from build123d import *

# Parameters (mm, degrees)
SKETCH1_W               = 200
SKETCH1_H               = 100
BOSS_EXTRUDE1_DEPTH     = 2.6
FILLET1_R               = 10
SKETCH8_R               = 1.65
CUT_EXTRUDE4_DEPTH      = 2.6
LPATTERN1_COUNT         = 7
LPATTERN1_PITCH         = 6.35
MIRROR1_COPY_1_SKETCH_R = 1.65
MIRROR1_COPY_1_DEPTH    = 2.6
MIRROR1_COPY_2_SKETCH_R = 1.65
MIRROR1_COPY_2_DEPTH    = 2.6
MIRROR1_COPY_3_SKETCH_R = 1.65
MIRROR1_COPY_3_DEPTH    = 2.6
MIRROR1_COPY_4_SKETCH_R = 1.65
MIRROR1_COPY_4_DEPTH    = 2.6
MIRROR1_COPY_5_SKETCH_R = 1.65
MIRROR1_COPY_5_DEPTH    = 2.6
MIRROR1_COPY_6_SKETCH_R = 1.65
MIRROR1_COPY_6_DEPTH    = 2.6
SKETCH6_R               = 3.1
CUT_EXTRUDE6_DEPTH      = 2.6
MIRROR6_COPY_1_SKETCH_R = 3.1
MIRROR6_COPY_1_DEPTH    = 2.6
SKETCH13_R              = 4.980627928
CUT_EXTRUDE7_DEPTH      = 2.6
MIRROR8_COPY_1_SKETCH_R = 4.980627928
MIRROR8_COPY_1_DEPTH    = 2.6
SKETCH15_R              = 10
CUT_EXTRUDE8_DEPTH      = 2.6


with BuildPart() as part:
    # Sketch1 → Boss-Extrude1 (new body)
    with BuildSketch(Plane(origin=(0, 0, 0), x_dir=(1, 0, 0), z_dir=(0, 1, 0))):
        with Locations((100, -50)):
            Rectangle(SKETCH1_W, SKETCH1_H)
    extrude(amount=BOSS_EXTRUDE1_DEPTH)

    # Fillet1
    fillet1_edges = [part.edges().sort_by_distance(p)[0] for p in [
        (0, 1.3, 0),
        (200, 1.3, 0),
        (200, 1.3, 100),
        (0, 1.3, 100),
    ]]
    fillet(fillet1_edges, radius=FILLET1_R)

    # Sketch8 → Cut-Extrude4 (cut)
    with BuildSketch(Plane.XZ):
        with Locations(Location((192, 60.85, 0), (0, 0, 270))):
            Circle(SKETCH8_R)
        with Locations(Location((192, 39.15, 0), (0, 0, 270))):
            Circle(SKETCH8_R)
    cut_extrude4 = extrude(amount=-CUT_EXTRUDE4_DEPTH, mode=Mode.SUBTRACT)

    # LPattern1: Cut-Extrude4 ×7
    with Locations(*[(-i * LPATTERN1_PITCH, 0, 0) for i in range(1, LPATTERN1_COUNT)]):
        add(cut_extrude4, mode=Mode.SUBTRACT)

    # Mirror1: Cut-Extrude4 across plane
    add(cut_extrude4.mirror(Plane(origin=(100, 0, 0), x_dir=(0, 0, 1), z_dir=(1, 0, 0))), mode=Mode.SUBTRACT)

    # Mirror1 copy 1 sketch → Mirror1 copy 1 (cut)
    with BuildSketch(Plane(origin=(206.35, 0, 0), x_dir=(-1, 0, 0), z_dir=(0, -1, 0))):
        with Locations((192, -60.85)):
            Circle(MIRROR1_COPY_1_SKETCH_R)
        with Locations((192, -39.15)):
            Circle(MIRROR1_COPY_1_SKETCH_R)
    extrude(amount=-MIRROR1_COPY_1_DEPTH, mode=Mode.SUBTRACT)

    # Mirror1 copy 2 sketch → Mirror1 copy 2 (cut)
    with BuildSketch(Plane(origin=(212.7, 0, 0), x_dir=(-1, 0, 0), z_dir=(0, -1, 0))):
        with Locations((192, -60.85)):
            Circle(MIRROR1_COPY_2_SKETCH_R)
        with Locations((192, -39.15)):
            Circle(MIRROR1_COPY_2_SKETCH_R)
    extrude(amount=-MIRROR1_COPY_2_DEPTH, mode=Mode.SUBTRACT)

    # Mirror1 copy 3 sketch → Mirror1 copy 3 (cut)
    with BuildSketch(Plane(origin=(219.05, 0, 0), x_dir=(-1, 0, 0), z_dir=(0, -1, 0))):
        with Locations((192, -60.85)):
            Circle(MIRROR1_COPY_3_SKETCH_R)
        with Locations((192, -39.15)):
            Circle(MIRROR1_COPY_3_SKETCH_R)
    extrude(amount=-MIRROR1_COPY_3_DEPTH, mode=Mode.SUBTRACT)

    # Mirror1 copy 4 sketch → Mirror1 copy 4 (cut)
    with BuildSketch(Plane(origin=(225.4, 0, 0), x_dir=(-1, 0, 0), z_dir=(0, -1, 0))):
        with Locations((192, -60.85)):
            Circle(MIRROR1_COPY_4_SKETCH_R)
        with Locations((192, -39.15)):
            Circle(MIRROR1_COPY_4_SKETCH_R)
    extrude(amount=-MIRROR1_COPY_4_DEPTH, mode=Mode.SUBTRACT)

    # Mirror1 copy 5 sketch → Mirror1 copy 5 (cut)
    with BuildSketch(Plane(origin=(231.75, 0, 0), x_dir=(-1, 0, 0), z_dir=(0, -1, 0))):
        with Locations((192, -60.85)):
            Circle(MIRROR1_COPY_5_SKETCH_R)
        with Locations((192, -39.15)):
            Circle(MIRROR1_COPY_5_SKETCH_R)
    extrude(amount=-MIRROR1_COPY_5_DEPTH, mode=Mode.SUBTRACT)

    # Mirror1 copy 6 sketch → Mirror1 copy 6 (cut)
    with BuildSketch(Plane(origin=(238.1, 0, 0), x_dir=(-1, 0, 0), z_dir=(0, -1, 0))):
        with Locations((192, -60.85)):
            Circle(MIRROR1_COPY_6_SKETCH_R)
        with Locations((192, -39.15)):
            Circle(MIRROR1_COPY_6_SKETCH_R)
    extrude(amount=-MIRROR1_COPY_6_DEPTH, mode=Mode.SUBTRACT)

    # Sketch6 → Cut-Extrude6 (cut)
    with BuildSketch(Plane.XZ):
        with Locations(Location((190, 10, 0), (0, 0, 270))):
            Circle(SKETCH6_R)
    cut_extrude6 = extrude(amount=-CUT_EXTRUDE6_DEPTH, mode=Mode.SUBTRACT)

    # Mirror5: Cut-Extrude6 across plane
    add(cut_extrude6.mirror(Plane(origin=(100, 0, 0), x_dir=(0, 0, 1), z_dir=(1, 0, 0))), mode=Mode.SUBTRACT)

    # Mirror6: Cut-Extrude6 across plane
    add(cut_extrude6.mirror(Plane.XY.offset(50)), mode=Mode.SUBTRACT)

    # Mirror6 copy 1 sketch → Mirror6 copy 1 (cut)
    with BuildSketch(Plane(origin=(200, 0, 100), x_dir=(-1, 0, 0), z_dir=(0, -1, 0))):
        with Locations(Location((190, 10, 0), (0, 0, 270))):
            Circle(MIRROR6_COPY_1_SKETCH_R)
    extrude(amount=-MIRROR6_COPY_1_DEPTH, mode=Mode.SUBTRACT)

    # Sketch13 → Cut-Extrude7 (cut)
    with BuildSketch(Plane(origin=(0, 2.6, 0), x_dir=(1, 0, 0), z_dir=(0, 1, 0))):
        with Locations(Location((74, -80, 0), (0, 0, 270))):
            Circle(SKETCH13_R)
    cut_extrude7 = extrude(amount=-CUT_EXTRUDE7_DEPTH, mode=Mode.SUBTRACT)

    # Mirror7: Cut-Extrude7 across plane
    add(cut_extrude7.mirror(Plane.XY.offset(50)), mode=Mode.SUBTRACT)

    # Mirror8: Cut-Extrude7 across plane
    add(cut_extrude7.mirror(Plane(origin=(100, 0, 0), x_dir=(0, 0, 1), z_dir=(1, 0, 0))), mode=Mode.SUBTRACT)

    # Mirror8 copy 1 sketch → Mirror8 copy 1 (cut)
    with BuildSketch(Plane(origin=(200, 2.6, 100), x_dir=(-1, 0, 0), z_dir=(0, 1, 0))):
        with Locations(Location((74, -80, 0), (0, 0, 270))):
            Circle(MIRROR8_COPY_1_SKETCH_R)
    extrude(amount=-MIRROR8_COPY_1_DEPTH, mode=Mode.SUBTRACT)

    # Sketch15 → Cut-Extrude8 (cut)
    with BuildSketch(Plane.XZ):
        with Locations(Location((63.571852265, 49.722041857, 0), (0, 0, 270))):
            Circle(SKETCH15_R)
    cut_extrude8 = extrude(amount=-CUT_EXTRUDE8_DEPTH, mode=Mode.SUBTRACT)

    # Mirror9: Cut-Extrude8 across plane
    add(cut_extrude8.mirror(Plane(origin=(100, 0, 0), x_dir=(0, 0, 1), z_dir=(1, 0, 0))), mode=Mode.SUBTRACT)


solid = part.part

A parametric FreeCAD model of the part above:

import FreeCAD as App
import Part
import Sketcher
from FreeCAD import Vector
Q = App.Units.Quantity


def edges_at(feature, points):
    """Names of the edges that pass closest to the given points."""
    edges = feature.Shape.Edges
    near = lambda p: min(range(len(edges)), key=lambda i: edges[i].distToShape(Part.Vertex(*p))[0])
    return sorted({f"Edge{near(p) + 1}" for p in points})


def add_polygon(sketch, points):
    """Adds a closed chain of lines whose ends are joined by coincident constraints."""
    first, n = sketch.GeometryCount, len(points)
    for a, b in zip(points, points[1:] + points[:1]):
        sketch.addGeometry(Part.LineSegment(App.Vector(*a, 0), App.Vector(*b, 0)), False)
    for i in range(n):
        sketch.addConstraint(Sketcher.Constraint("Coincident", first + i, 2, first + (i + 1) % n, 1))

doc = App.newDocument("Part")
body = doc.addObject("PartDesign::Body", "Body")

# Sketch on XZ plane
sketch1 = body.newObject("Sketcher::SketchObject", "Sketch")
sketch1.AttachmentSupport = (doc.getObject("XZ_Plane"), [""])
sketch1.MapMode = "FlatFace"
add_polygon(sketch1, [(0, 0), (0, 100), (200, 100), (200, 0)])  # lines 0-3
sketch1.addConstraint(Sketcher.Constraint("Vertical", 0))
sketch1.addConstraint(Sketcher.Constraint("Horizontal", 1))
sketch1.addConstraint(Sketcher.Constraint("Vertical", 2))
sketch1.addConstraint(Sketcher.Constraint("Horizontal", 3))
sketch1.addConstraint(Sketcher.Constraint("Coincident", 3, 2, -1, 1))
sketch1.addConstraint(Sketcher.Constraint("DistanceX", 1, 1, 1, 2, Q("200 mm")))
sketch1.addConstraint(Sketcher.Constraint("DistanceY", 0, 1, 0, 2, Q("100 mm")))
pad1 = body.newObject("PartDesign::Pad", "Pad")
pad1.Profile = sketch1
pad1.Length = 2.6
pad1.Reversed = True
doc.recompute()

fillet = body.newObject("PartDesign::Fillet", "Fillet")
fillet.Base = (pad1, edges_at(pad1, [
    (0, 1.3, 0),
    (200, 1.3, 0),
    (200, 1.3, 100),
    (0, 1.3, 100),
]))
fillet.Radius = 10

# Sketch on XZ plane
sketch2 = body.newObject("Sketcher::SketchObject", "Sketch001")
sketch2.AttachmentSupport = (doc.getObject("XZ_Plane"), [""])
sketch2.MapMode = "FlatFace"
sketch2.addGeometry(Part.Circle(Vector(192, 60.9, 0), Vector(0, 0, 1), 1.6), False)
sketch2.addGeometry(Part.Circle(Vector(192, 39.1, 0), Vector(0, 0, 1), 1.6), False)
sketch2.addConstraint(Sketcher.Constraint("Equal", 0, 1))
sketch2.addConstraint(Sketcher.Constraint("Vertical", 0, 3, 1, 3))
sketch2.addConstraint(Sketcher.Constraint("Diameter", 0, Q("3.3 mm")))
sketch2.addConstraint(Sketcher.Constraint("DistanceX", -1, 1, 0, 3, Q("192 mm")))
sketch2.addConstraint(Sketcher.Constraint("DistanceY", 1, 3, 0, 3, Q("21.7 mm")))
sketch2.addConstraint(Sketcher.Constraint("DistanceY", -1, 1, 0, 3, Q("60.85 mm")))
pocket1 = body.newObject("PartDesign::Pocket", "Pocket")
pocket1.Profile = sketch2
pocket1.Length = 2.6
doc.recompute()

linearpattern = body.newObject("PartDesign::LinearPattern", "LinearPattern")
linearpattern.Originals = [pocket1]
linearpattern.Direction = (doc.getObject("X_Axis"), [""])
linearpattern.Mode = "offset"
linearpattern.Offset = 6.35
linearpattern.Occurrences = 7
linearpattern.Reversed = True
body.Tip = linearpattern
doc.recompute()

datumplane = body.newObject("PartDesign::Plane", "DatumPlane")
datumplane.AttachmentSupport = (doc.getObject("YZ_Plane"), [""])
datumplane.MapMode = "FlatFace"
datumplane.AttachmentOffset = App.Placement(Vector(0, 0, 100), App.Rotation())
mirrored = body.newObject("PartDesign::Mirrored", "Mirrored")
mirrored.Originals = [pocket1]
mirrored.MirrorPlane = (datumplane, [""])
body.Tip = mirrored

# Sketch on XZ plane
sketch3 = body.newObject("Sketcher::SketchObject", "Sketch002")
sketch3.AttachmentSupport = (doc.getObject("XZ_Plane"), [""])
sketch3.MapMode = "FlatFace"
sketch3.addGeometry(Part.Circle(Vector(14.3, 60.9, 0), Vector(0, 0, 1), 1.6), False)
sketch3.addGeometry(Part.Circle(Vector(14.3, 39.1, 0), Vector(0, 0, 1), 1.6), False)
sketch3.addConstraint(Sketcher.Constraint("Equal", 0, 1))
sketch3.addConstraint(Sketcher.Constraint("Vertical", 0, 3, 1, 3))
sketch3.addConstraint(Sketcher.Constraint("Diameter", 0, Q("3.3 mm")))
sketch3.addConstraint(Sketcher.Constraint("DistanceY", 1, 3, 0, 3, Q("21.7 mm")))
sketch3.addConstraint(Sketcher.Constraint("DistanceX", -1, 1, 0, 3, Q("14.35 mm")))
sketch3.addConstraint(Sketcher.Constraint("DistanceY", -1, 1, 0, 3, Q("60.85 mm")))
pocket2 = body.newObject("PartDesign::Pocket", "Pocket001")
pocket2.Profile = sketch3
pocket2.Length = 2.6

# Sketch on XZ plane
sketch4 = body.newObject("Sketcher::SketchObject", "Sketch003")
sketch4.AttachmentSupport = (doc.getObject("XZ_Plane"), [""])
sketch4.MapMode = "FlatFace"
sketch4.addGeometry(Part.Circle(Vector(20.7, 60.9, 0), Vector(0, 0, 1), 1.6), False)
sketch4.addGeometry(Part.Circle(Vector(20.7, 39.1, 0), Vector(0, 0, 1), 1.6), False)
sketch4.addConstraint(Sketcher.Constraint("Equal", 0, 1))
sketch4.addConstraint(Sketcher.Constraint("Vertical", 0, 3, 1, 3))
sketch4.addConstraint(Sketcher.Constraint("Diameter", 0, Q("3.3 mm")))
sketch4.addConstraint(Sketcher.Constraint("DistanceX", -1, 1, 0, 3, Q("20.7 mm")))
sketch4.addConstraint(Sketcher.Constraint("DistanceY", 1, 3, 0, 3, Q("21.7 mm")))
sketch4.addConstraint(Sketcher.Constraint("DistanceY", -1, 1, 0, 3, Q("60.85 mm")))
pocket3 = body.newObject("PartDesign::Pocket", "Pocket002")
pocket3.Profile = sketch4
pocket3.Length = 2.6

# Sketch on XZ plane
sketch5 = body.newObject("Sketcher::SketchObject", "Sketch004")
sketch5.AttachmentSupport = (doc.getObject("XZ_Plane"), [""])
sketch5.MapMode = "FlatFace"
sketch5.addGeometry(Part.Circle(Vector(27.1, 60.9, 0), Vector(0, 0, 1), 1.6), False)
sketch5.addGeometry(Part.Circle(Vector(27.1, 39.1, 0), Vector(0, 0, 1), 1.6), False)
sketch5.addConstraint(Sketcher.Constraint("Equal", 0, 1))
sketch5.addConstraint(Sketcher.Constraint("Vertical", 0, 3, 1, 3))
sketch5.addConstraint(Sketcher.Constraint("Diameter", 0, Q("3.3 mm")))
sketch5.addConstraint(Sketcher.Constraint("DistanceY", 1, 3, 0, 3, Q("21.7 mm")))
sketch5.addConstraint(Sketcher.Constraint("DistanceX", -1, 1, 0, 3, Q("27.05 mm")))
sketch5.addConstraint(Sketcher.Constraint("DistanceY", -1, 1, 0, 3, Q("60.85 mm")))
pocket4 = body.newObject("PartDesign::Pocket", "Pocket003")
pocket4.Profile = sketch5
pocket4.Length = 2.6

# Sketch on XZ plane
sketch6 = body.newObject("Sketcher::SketchObject", "Sketch005")
sketch6.AttachmentSupport = (doc.getObject("XZ_Plane"), [""])
sketch6.MapMode = "FlatFace"
sketch6.addGeometry(Part.Circle(Vector(33.4, 60.9, 0), Vector(0, 0, 1), 1.6), False)
sketch6.addGeometry(Part.Circle(Vector(33.4, 39.1, 0), Vector(0, 0, 1), 1.6), False)
sketch6.addConstraint(Sketcher.Constraint("Equal", 0, 1))
sketch6.addConstraint(Sketcher.Constraint("Vertical", 0, 3, 1, 3))
sketch6.addConstraint(Sketcher.Constraint("Diameter", 0, Q("3.3 mm")))
sketch6.addConstraint(Sketcher.Constraint("DistanceX", -1, 1, 0, 3, Q("33.4 mm")))
sketch6.addConstraint(Sketcher.Constraint("DistanceY", 1, 3, 0, 3, Q("21.7 mm")))
sketch6.addConstraint(Sketcher.Constraint("DistanceY", -1, 1, 0, 3, Q("60.85 mm")))
pocket5 = body.newObject("PartDesign::Pocket", "Pocket004")
pocket5.Profile = sketch6
pocket5.Length = 2.6

# Sketch on XZ plane
sketch7 = body.newObject("Sketcher::SketchObject", "Sketch006")
sketch7.AttachmentSupport = (doc.getObject("XZ_Plane"), [""])
sketch7.MapMode = "FlatFace"
sketch7.addGeometry(Part.Circle(Vector(39.8, 60.9, 0), Vector(0, 0, 1), 1.6), False)
sketch7.addGeometry(Part.Circle(Vector(39.8, 39.1, 0), Vector(0, 0, 1), 1.6), False)
sketch7.addConstraint(Sketcher.Constraint("Equal", 0, 1))
sketch7.addConstraint(Sketcher.Constraint("Vertical", 0, 3, 1, 3))
sketch7.addConstraint(Sketcher.Constraint("Diameter", 0, Q("3.3 mm")))
sketch7.addConstraint(Sketcher.Constraint("DistanceY", 1, 3, 0, 3, Q("21.7 mm")))
sketch7.addConstraint(Sketcher.Constraint("DistanceX", -1, 1, 0, 3, Q("39.75 mm")))
sketch7.addConstraint(Sketcher.Constraint("DistanceY", -1, 1, 0, 3, Q("60.85 mm")))
pocket6 = body.newObject("PartDesign::Pocket", "Pocket005")
pocket6.Profile = sketch7
pocket6.Length = 2.6

# Sketch on XZ plane
sketch8 = body.newObject("Sketcher::SketchObject", "Sketch007")
sketch8.AttachmentSupport = (doc.getObject("XZ_Plane"), [""])
sketch8.MapMode = "FlatFace"
sketch8.addGeometry(Part.Circle(Vector(46.1, 60.9, 0), Vector(0, 0, 1), 1.6), False)
sketch8.addGeometry(Part.Circle(Vector(46.1, 39.1, 0), Vector(0, 0, 1), 1.6), False)
sketch8.addConstraint(Sketcher.Constraint("Equal", 0, 1))
sketch8.addConstraint(Sketcher.Constraint("Vertical", 0, 3, 1, 3))
sketch8.addConstraint(Sketcher.Constraint("Diameter", 0, Q("3.3 mm")))
sketch8.addConstraint(Sketcher.Constraint("DistanceX", -1, 1, 0, 3, Q("46.1 mm")))
sketch8.addConstraint(Sketcher.Constraint("DistanceY", 1, 3, 0, 3, Q("21.7 mm")))
sketch8.addConstraint(Sketcher.Constraint("DistanceY", -1, 1, 0, 3, Q("60.85 mm")))
pocket7 = body.newObject("PartDesign::Pocket", "Pocket006")
pocket7.Profile = sketch8
pocket7.Length = 2.6

# Sketch on XZ plane
sketch9 = body.newObject("Sketcher::SketchObject", "Sketch008")
sketch9.AttachmentSupport = (doc.getObject("XZ_Plane"), [""])
sketch9.MapMode = "FlatFace"
sketch9.addGeometry(Part.Circle(Vector(190, 10, 0), Vector(0, 0, 1), 3.1), False)
sketch9.addConstraint(Sketcher.Constraint("Diameter", 0, Q("6.2 mm")))
sketch9.addConstraint(Sketcher.Constraint("DistanceX", -1, 1, 0, 3, Q("190 mm")))
sketch9.addConstraint(Sketcher.Constraint("DistanceY", -1, 1, 0, 3, Q("10 mm")))
pocket8 = body.newObject("PartDesign::Pocket", "Pocket007")
pocket8.Profile = sketch9
pocket8.Length = 2.6
doc.recompute()

datumplane2 = body.newObject("PartDesign::Plane", "DatumPlane001")
datumplane2.AttachmentSupport = (doc.getObject("YZ_Plane"), [""])
datumplane2.MapMode = "FlatFace"
datumplane2.AttachmentOffset = App.Placement(Vector(0, 0, 100), App.Rotation())
mirrored2 = body.newObject("PartDesign::Mirrored", "Mirrored001")
mirrored2.Originals = [pocket8]
mirrored2.MirrorPlane = (datumplane2, [""])
body.Tip = mirrored2
doc.recompute()

datumplane3 = body.newObject("PartDesign::Plane", "DatumPlane002")
datumplane3.AttachmentSupport = (doc.getObject("XY_Plane"), [""])
datumplane3.MapMode = "FlatFace"
datumplane3.AttachmentOffset = App.Placement(Vector(0, 0, 50), App.Rotation())
mirrored3 = body.newObject("PartDesign::Mirrored", "Mirrored002")
mirrored3.Originals = [pocket8]
mirrored3.MirrorPlane = (datumplane3, [""])
body.Tip = mirrored3

# Sketch on XZ plane
sketch10 = body.newObject("Sketcher::SketchObject", "Sketch009")
sketch10.AttachmentSupport = (doc.getObject("XZ_Plane"), [""])
sketch10.MapMode = "FlatFace"
sketch10.addGeometry(Part.Circle(Vector(10, 90, 0), Vector(0, 0, 1), 3.1), False)
sketch10.addConstraint(Sketcher.Constraint("Diameter", 0, Q("6.2 mm")))
sketch10.addConstraint(Sketcher.Constraint("DistanceX", -1, 1, 0, 3, Q("10 mm")))
sketch10.addConstraint(Sketcher.Constraint("DistanceY", -1, 1, 0, 3, Q("90 mm")))
pocket9 = body.newObject("PartDesign::Pocket", "Pocket008")
pocket9.Profile = sketch10
pocket9.Length = 2.6

# Sketch on XZ plane
sketch11 = body.newObject("Sketcher::SketchObject", "Sketch010")
sketch11.AttachmentSupport = (doc.getObject("XZ_Plane"), [""])
sketch11.MapMode = "FlatFace"
sketch11.AttachmentOffset = App.Placement(Vector(0, 0, -2.6), App.Rotation())
sketch11.addGeometry(Part.Circle(Vector(74, 80, 0), Vector(0, 0, 1), 5), False)
sketch11.addConstraint(Sketcher.Constraint("DistanceX", -1, 1, 0, 3, Q("74 mm")))
sketch11.addConstraint(Sketcher.Constraint("DistanceY", -1, 1, 0, 3, Q("80 mm")))
sketch11.addConstraint(Sketcher.Constraint("Diameter", 0, Q("9.961256 mm")))
pocket10 = body.newObject("PartDesign::Pocket", "Pocket009")
pocket10.Profile = sketch11
pocket10.Length = 2.6
pocket10.Reversed = True
doc.recompute()

datumplane4 = body.newObject("PartDesign::Plane", "DatumPlane003")
datumplane4.AttachmentSupport = (doc.getObject("XY_Plane"), [""])
datumplane4.MapMode = "FlatFace"
datumplane4.AttachmentOffset = App.Placement(Vector(0, 0, 50), App.Rotation())
mirrored4 = body.newObject("PartDesign::Mirrored", "Mirrored003")
mirrored4.Originals = [pocket10]
mirrored4.MirrorPlane = (datumplane4, [""])
body.Tip = mirrored4
doc.recompute()

datumplane5 = body.newObject("PartDesign::Plane", "DatumPlane004")
datumplane5.AttachmentSupport = (doc.getObject("YZ_Plane"), [""])
datumplane5.MapMode = "FlatFace"
datumplane5.AttachmentOffset = App.Placement(Vector(0, 0, 100), App.Rotation())
mirrored5 = body.newObject("PartDesign::Mirrored", "Mirrored004")
mirrored5.Originals = [pocket10]
mirrored5.MirrorPlane = (datumplane5, [""])
body.Tip = mirrored5

# Sketch on XZ plane
sketch12 = body.newObject("Sketcher::SketchObject", "Sketch011")
sketch12.AttachmentSupport = (doc.getObject("XZ_Plane"), [""])
sketch12.MapMode = "FlatFace"
sketch12.AttachmentOffset = App.Placement(Vector(0, 0, -2.6), App.Rotation())
sketch12.addGeometry(Part.Circle(Vector(126, 20, 0), Vector(0, 0, 1), 5), False)
sketch12.addConstraint(Sketcher.Constraint("DistanceX", -1, 1, 0, 3, Q("126 mm")))
sketch12.addConstraint(Sketcher.Constraint("DistanceY", -1, 1, 0, 3, Q("20 mm")))
sketch12.addConstraint(Sketcher.Constraint("Diameter", 0, Q("9.961256 mm")))
pocket11 = body.newObject("PartDesign::Pocket", "Pocket010")
pocket11.Profile = sketch12
pocket11.Length = 2.6
pocket11.Reversed = True

# Sketch on XZ plane
sketch13 = body.newObject("Sketcher::SketchObject", "Sketch012")
sketch13.AttachmentSupport = (doc.getObject("XZ_Plane"), [""])
sketch13.MapMode = "FlatFace"
sketch13.addGeometry(Part.Circle(Vector(64, 50, 0), Vector(0, 0, 1), 10), False)
sketch13.addConstraint(Sketcher.Constraint("Diameter", 0, Q("20 mm")))
sketch13.addConstraint(Sketcher.Constraint("DistanceY", -1, 1, 0, 3, Q("49.722042 mm")))
sketch13.addConstraint(Sketcher.Constraint("DistanceX", -1, 1, 0, 3, Q("63.571852 mm")))
pocket12 = body.newObject("PartDesign::Pocket", "Pocket011")
pocket12.Profile = sketch13
pocket12.Length = 2.6
doc.recompute()

datumplane6 = body.newObject("PartDesign::Plane", "DatumPlane005")
datumplane6.AttachmentSupport = (doc.getObject("YZ_Plane"), [""])
datumplane6.MapMode = "FlatFace"
datumplane6.AttachmentOffset = App.Placement(Vector(0, 0, 100), App.Rotation())
mirrored6 = body.newObject("PartDesign::Mirrored", "Mirrored005")
mirrored6.Originals = [pocket12]
mirrored6.MirrorPlane = (datumplane6, [""])
body.Tip = mirrored6

doc.recompute()
